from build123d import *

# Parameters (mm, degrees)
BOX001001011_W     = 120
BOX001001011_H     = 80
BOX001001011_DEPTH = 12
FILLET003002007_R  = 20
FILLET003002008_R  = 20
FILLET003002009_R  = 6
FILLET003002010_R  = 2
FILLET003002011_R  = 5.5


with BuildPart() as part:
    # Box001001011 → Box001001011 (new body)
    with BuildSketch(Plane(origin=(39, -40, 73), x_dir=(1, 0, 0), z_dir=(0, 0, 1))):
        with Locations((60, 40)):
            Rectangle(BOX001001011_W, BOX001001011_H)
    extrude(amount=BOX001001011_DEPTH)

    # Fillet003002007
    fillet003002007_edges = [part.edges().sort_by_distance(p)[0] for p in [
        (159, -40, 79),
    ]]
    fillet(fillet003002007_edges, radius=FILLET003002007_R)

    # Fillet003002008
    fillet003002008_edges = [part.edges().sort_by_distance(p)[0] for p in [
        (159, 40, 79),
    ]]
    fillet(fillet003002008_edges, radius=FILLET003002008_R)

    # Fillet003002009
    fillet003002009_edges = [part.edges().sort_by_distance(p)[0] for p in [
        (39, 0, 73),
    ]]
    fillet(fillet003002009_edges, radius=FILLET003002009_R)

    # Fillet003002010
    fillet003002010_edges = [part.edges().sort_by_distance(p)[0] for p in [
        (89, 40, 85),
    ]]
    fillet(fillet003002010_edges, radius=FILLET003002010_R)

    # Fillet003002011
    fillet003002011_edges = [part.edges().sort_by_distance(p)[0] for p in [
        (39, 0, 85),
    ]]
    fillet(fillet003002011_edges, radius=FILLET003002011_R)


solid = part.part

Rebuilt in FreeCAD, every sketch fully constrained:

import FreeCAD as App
import Part
import Sketcher
from FreeCAD import Vector
Q = App.Units.Quantity


def edges_at(feature, points):
    """Names of the edges that pass closest to the given points."""
    edges = feature.Shape.Edges
    near = lambda p: min(range(len(edges)), key=lambda i: edges[i].distToShape(Part.Vertex(*p))[0])
    return sorted({f"Edge{near(p) + 1}" for p in points})

doc = App.newDocument("Part")
body = doc.addObject("PartDesign::Body", "Body")

# Sketch on XY plane
sketch1 = body.newObject("Sketcher::SketchObject", "Sketch")
sketch1.AttachmentSupport = (doc.getObject("XY_Plane"), [""])
sketch1.MapMode = "FlatFace"
sketch1.AttachmentOffset = App.Placement(Vector(0, 0, 73), App.Rotation())
sketch1.addGeometry([
    Part.LineSegment(Vector(39, 40, 0), Vector(39, -40, 0)),
    Part.LineSegment(Vector(39, -40, 0), Vector(159, -40, 0)),
    Part.LineSegment(Vector(159, -40, 0), Vector(159, 40, 0)),
    Part.LineSegment(Vector(159, 40, 0), Vector(39, 40, 0)),
], False)
sketch1.addConstraint([
    Sketcher.Constraint("Coincident", 0, 2, 1, 1),
    Sketcher.Constraint("Coincident", 1, 2, 2, 1),
    Sketcher.Constraint("Coincident", 2, 2, 3, 1),
    Sketcher.Constraint("Coincident", 3, 2, 0, 1),
    Sketcher.Constraint("Vertical", 0),
    Sketcher.Constraint("Horizontal", 1),
    Sketcher.Constraint("Vertical", 2),
    Sketcher.Constraint("Horizontal", 3),
    Sketcher.Constraint("DistanceX", 1, 1, 1, 2, Q("120 mm")),
    Sketcher.Constraint("DistanceY", 0, 2, 0, 1, Q("80 mm")),
    Sketcher.Constraint("DistanceX", -1, 1, 0, 2, Q("39 mm")),
    Sketcher.Constraint("DistanceY", 0, 2, -1, 1, Q("40 mm")),
])
pad1 = body.newObject("PartDesign::Pad", "Pad")
pad1.Profile = sketch1
pad1.Length = 12
doc.recompute()

fillet = body.newObject("PartDesign::Fillet", "Fillet")
fillet.Base = (pad1, edges_at(pad1, [(159, -40, 79)]))
fillet.Radius = 20
doc.recompute()

fillet2 = body.newObject("PartDesign::Fillet", "Fillet001")
fillet2.Base = (fillet, edges_at(fillet, [(159, 40, 79)]))
fillet2.Radius = 20
doc.recompute()

fillet3 = body.newObject("PartDesign::Fillet", "Fillet002")
fillet3.Base = (fillet2, edges_at(fillet2, [(39, 0, 73)]))
fillet3.Radius = 6
doc.recompute()

fillet4 = body.newObject("PartDesign::Fillet", "Fillet003")
fillet4.Base = (fillet3, edges_at(fillet3, [(89, 40, 85)]))
fillet4.Radius = 2
doc.recompute()

fillet5 = body.newObject("PartDesign::Fillet", "Fillet004")
fillet5.Base = (fillet4, edges_at(fillet4, [(39, 0, 85)]))
fillet5.Radius = 5.5

doc.recompute()
